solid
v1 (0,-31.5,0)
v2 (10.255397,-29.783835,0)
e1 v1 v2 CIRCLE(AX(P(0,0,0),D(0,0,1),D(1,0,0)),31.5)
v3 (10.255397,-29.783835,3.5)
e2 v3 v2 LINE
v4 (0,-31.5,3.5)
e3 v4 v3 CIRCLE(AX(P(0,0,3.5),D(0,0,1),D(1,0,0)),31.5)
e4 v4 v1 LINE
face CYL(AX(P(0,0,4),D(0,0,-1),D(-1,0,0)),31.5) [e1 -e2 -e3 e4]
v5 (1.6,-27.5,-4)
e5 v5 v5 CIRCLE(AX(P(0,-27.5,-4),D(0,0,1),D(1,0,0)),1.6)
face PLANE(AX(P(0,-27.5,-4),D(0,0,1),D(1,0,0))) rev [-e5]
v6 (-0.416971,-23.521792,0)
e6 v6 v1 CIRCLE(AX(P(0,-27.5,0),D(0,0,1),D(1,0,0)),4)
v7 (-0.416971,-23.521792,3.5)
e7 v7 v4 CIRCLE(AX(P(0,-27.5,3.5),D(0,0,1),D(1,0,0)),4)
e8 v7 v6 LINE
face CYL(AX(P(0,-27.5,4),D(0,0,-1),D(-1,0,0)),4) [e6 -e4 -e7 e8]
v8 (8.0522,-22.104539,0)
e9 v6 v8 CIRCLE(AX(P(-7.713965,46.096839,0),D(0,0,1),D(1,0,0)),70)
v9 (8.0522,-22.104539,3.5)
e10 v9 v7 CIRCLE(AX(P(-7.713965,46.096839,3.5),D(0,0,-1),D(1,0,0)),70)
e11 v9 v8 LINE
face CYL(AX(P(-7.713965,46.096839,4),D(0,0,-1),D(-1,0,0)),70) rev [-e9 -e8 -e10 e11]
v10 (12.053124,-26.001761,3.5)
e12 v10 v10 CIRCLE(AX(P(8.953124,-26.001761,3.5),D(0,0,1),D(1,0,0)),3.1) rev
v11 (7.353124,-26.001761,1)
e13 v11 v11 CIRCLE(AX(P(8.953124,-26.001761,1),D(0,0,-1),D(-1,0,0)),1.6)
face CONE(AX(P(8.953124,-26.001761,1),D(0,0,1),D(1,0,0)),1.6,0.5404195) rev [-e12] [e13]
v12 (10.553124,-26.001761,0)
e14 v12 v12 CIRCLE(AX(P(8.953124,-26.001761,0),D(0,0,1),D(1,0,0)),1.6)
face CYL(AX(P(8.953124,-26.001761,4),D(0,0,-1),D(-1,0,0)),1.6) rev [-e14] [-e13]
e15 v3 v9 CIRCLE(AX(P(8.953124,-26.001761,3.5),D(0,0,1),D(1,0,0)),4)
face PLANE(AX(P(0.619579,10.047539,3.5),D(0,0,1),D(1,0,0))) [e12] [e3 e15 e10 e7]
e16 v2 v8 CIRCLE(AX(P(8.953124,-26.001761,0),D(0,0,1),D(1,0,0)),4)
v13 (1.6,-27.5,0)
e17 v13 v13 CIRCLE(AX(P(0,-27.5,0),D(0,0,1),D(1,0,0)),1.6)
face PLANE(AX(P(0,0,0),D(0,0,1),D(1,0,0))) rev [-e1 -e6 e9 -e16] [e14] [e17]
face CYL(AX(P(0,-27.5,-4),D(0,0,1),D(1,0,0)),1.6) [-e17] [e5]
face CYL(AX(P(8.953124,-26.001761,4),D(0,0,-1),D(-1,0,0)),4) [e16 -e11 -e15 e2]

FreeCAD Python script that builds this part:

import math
import FreeCAD as App
import Part
import Sketcher


def add_polygon(sketch, points):
    """Adds a closed chain of lines whose ends are joined by coincident constraints."""
    first, n = sketch.GeometryCount, len(points)
    for a, b in zip(points, points[1:] + points[:1]):
        sketch.addGeometry(Part.LineSegment(App.Vector(*a, 0), App.Vector(*b, 0)), False)
    for i in range(n):
        sketch.addConstraint(Sketcher.Constraint("Coincident", first + i, 2, first + (i + 1) % n, 1))

doc = App.newDocument("Part")
body = doc.addObject("PartDesign::Body", "Body")

# Sketch on XY plane
sketch1 = body.newObject("Sketcher::SketchObject", "Sketch")
sketch1.AttachmentSupport = (doc.getObject("XY_Plane"), [""])
sketch1.MapMode = "FlatFace"
sketch1.addGeometry([
    Part.ArcOfCircle(Part.Circle(App.Vector(0, -27.5, 0), App.Vector(0, 0, 1), 4), math.radians(96), math.radians(270)),  # 0
    Part.ArcOfCircle(Part.Circle(App.Vector(0, 0, 0), App.Vector(0, 0, 1), 31.5), math.radians(-90), math.radians(-71)),  # 1
    Part.ArcOfCircle(Part.Circle(App.Vector(9, -26, 0), App.Vector(0, 0, 1), 4), math.radians(-71), math.radians(103)),  # 2
    Part.ArcOfCircle(Part.Circle(App.Vector(-7.7, 46.1, 0), App.Vector(0, 0, 1), 70), math.radians(-84.02), math.radians(-76.98)),  # 3
    Part.Circle(App.Vector(9, -26, 0), App.Vector(0, 0, 1), 1.6),  # 4
], False)
sketch1.addConstraint([
    Sketcher.Constraint("Tangent", 0, 2, 1, 1),
    Sketcher.Constraint("Tangent", 1, 2, 2, 1),
    Sketcher.Constraint("Tangent", 2, 2, 3, 2),
    Sketcher.Constraint("Tangent", 3, 1, 0, 1),
    Sketcher.Constraint("Coincident", 1, 3, -1, 1),
    Sketcher.Constraint("Coincident", 4, 3, 2, 3),
    Sketcher.Constraint("Equal", 0, 2),
    Sketcher.Constraint("PointOnObject", 0, 3, -2),
    Sketcher.Constraint("Radius", 0, 4.0),
    Sketcher.Constraint("Radius", 3, 70.0),
    Sketcher.Constraint("Diameter", 4, 3.2),
    Sketcher.Constraint("Radius", 1, 31.5),
    Sketcher.Constraint("DistanceX", -1, 1, 2, 2, 8.0522),
])
pad1 = body.newObject("PartDesign::Pad", "Pad")
pad1.Profile = sketch1
pad1.Length = 4

# Sketch on XY plane
sketch2 = body.newObject("Sketcher::SketchObject", "Sketch001")
sketch2.AttachmentSupport = (doc.getObject("XY_Plane"), [""])
sketch2.MapMode = "FlatFace"
sketch2.addGeometry(Part.Circle(App.Vector(0, -27.5, 0), App.Vector(0, 0, 1), 1.6), False)
sketch2.addConstraint([
    Sketcher.Constraint("PointOnObject", 0, 3, -2),
    Sketcher.Constraint("Diameter", 0, 3.2),
    Sketcher.Constraint("DistanceY", 0, 3, -1, 1, 27.5),
])
pad2 = body.newObject("PartDesign::Pad", "Pad001")
pad2.Profile = sketch2
pad2.Length = 4
pad2.Reversed = True

# Sketch on XZ plane
sketch3 = body.newObject("Sketcher::SketchObject", "Sketch002")
sketch3.AttachmentSupport = (doc.getObject("XZ_Plane"), [""])
sketch3.MapMode = "FlatFace"
sketch3.AttachmentOffset = App.Placement(App.Vector(0, 0, 26.001761), App.Rotation())
add_polygon(sketch3, [(5.9, 3.5), (9, 3.5), (9, 1), (7.4, 1)])  # lines 0-3
sketch3.addGeometry(Part.LineSegment(App.Vector(9, 1, 0), App.Vector(9, 3.5, 0)), True)  # axis
sketch3.addConstraint([
    Sketcher.Constraint("Horizontal", 0),
    Sketcher.Constraint("Vertical", 1),
    Sketcher.Constraint("Horizontal", 2),
    Sketcher.Constraint("Vertical", 4),
    Sketcher.Constraint("Coincident", 4, 1, 1, 2),
    Sketcher.Constraint("Horizontal", 3, 2, 4, 2),
    Sketcher.Constraint("DistanceX", 0, 1, 0, 2, 3.1),
    Sketcher.Constraint("DistanceX", 2, 2, 2, 1, 1.6),
    Sketcher.Constraint("DistanceY", 1, 2, 1, 1, 2.5),
    Sketcher.Constraint("DistanceY", -1, 1, 1, 2, 1.0),
    Sketcher.Constraint("DistanceX", -1, 1, 0, 2, 8.953124),
])
groove = body.newObject("PartDesign::Groove", "Groove")
groove.Profile = sketch3
groove.ReferenceAxis = (sketch3, ["Axis0"])
groove.Angle = 360

# Sketch on XY plane
sketch4 = body.newObject("Sketcher::SketchObject", "Sketch003")
sketch4.AttachmentSupport = (doc.getObject("XY_Plane"), [""])
sketch4.MapMode = "FlatFace"
sketch4.AttachmentOffset = App.Placement(App.Vector(0, 0, 3.5), App.Rotation())
sketch4.addGeometry([
    Part.ArcOfCircle(Part.Circle(App.Vector(0, -27.5, 0), App.Vector(0, 0, 1), 4), math.radians(96), math.radians(270)),
    Part.ArcOfCircle(Part.Circle(App.Vector(0, 0, 0), App.Vector(0, 0, 1), 31.5), math.radians(-90), math.radians(-71)),
    Part.ArcOfCircle(Part.Circle(App.Vector(9, -26, 0), App.Vector(0, 0, 1), 4), math.radians(-71), math.radians(103)),
    Part.ArcOfCircle(Part.Circle(App.Vector(-7.7, 46.1, 0), App.Vector(0, 0, 1), 70), math.radians(-84.02), math.radians(-76.98)),
], False)
sketch4.addConstraint([
    Sketcher.Constraint("Tangent", 0, 2, 1, 1),
    Sketcher.Constraint("Tangent", 1, 2, 2, 1),
    Sketcher.Constraint("Tangent", 2, 2, 3, 2),
    Sketcher.Constraint("Tangent", 3, 1, 0, 1),
    Sketcher.Constraint("Coincident", 1, 3, -1, 1),
    Sketcher.Constraint("Equal", 0, 2),
    Sketcher.Constraint("PointOnObject", 0, 3, -2),
    Sketcher.Constraint("Radius", 0, 4.0),
    Sketcher.Constraint("Radius", 3, 70.0),
    Sketcher.Constraint("Radius", 1, 31.5),
    Sketcher.Constraint("DistanceX", -1, 1, 2, 2, 8.0522),
])
pocket1 = body.newObject("PartDesign::Pocket", "Pocket")
pocket1.Profile = sketch4
pocket1.Length = 0.5
pocket1.Reversed = True

doc.recompute()
